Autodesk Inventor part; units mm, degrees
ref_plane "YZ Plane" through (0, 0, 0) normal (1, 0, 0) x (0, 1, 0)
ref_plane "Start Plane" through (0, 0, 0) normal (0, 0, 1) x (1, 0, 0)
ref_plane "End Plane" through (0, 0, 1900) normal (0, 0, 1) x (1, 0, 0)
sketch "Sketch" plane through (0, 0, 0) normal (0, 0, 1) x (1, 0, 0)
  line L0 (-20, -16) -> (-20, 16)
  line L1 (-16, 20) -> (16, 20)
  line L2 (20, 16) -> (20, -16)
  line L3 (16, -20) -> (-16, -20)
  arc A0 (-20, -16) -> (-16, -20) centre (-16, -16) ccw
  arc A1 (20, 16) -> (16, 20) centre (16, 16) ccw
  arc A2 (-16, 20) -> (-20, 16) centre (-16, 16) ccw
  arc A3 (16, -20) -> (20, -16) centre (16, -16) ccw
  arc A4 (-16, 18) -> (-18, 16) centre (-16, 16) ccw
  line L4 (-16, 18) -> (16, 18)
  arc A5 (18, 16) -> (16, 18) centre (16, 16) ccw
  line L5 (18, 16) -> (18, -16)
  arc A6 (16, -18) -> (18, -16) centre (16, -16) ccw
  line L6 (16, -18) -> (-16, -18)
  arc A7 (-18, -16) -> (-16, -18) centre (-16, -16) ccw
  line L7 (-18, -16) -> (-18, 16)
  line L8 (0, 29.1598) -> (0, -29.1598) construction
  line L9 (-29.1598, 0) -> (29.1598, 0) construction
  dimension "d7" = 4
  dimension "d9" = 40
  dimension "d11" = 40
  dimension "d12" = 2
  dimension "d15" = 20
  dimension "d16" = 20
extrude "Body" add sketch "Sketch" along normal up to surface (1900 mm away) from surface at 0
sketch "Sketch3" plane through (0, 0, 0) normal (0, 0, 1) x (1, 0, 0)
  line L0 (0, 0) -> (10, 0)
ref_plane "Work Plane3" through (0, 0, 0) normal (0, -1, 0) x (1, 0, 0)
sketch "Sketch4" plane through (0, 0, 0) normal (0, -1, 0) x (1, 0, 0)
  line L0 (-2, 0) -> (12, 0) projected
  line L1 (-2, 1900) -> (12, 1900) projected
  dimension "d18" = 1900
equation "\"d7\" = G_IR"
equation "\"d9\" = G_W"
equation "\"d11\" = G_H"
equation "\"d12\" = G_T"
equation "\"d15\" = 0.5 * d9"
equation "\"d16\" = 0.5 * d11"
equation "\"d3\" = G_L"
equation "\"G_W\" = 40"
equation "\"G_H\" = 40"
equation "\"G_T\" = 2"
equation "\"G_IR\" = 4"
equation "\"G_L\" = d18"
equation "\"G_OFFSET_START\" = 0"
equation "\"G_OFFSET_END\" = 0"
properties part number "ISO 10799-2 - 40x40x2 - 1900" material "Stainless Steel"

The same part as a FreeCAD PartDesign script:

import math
import FreeCAD as App
import Part
import Sketcher

V = App.Vector

doc = App.newDocument("Part")
params = doc.addObject("Spreadsheet::Sheet", "Params")
for row, (alias, value) in enumerate([
    ("sketch1_radius", "4 mm"),
    ("sketch1_radius2", "2 mm"),
    ("pad1_length", "1900 mm"),
], start=1):
    params.set(f"A{row}", alias)
    params.set(f"B{row}", "=" + value)
    params.setAlias(f"B{row}", alias)

body = doc.addObject("PartDesign::Body", "Body")

# Sketch on XY plane
sketch1 = body.newObject("Sketcher::SketchObject", "Sketch")
sketch1.AttachmentSupport = (doc.getObject("XY_Plane"), [""])
sketch1.MapMode = "FlatFace"
sketch1.addGeometry([
    Part.LineSegment(V(-20, 16, 0), V(-20, -16, 0)),  # 0
    Part.ArcOfCircle(Part.Circle(V(-16, -16, 0), V(0, 0, 1), 4), math.radians(180), math.radians(270)),  # 1
    Part.LineSegment(V(-16, -20, 0), V(16, -20, 0)),  # 2
    Part.ArcOfCircle(Part.Circle(V(16, -16, 0), V(0, 0, 1), 4), math.radians(-90), math.radians(0)),  # 3
    Part.LineSegment(V(20, -16, 0), V(20, 16, 0)),  # 4
    Part.ArcOfCircle(Part.Circle(V(16, 16, 0), V(0, 0, 1), 4), math.radians(0), math.radians(90)),  # 5
    Part.LineSegment(V(16, 20, 0), V(-16, 20, 0)),  # 6
    Part.ArcOfCircle(Part.Circle(V(-16, 16, 0), V(0, 0, 1), 4), math.radians(90), math.radians(180)),  # 7
    Part.ArcOfCircle(Part.Circle(V(-16, 16, 0), V(0, 0, 1), 2), math.radians(90), math.radians(180)),  # 8
    Part.LineSegment(V(-16, 18, 0), V(16, 18, 0)),  # 9
    Part.ArcOfCircle(Part.Circle(V(16, 16, 0), V(0, 0, 1), 2), math.radians(0), math.radians(90)),  # 10
    Part.LineSegment(V(18, 16, 0), V(18, -16, 0)),  # 11
    Part.ArcOfCircle(Part.Circle(V(16, -16, 0), V(0, 0, 1), 2), math.radians(-90), math.radians(0)),  # 12
    Part.LineSegment(V(16, -18, 0), V(-16, -18, 0)),  # 13
    Part.ArcOfCircle(Part.Circle(V(-16, -16, 0), V(0, 0, 1), 2), math.radians(180), math.radians(270)),  # 14
    Part.LineSegment(V(-18, -16, 0), V(-18, 16, 0)),  # 15
], False)
sketch1.addConstraint([
    Sketcher.Constraint("Tangent", 0, 2, 1, 1),
    Sketcher.Constraint("Tangent", 1, 2, 2, 1),
    Sketcher.Constraint("Tangent", 2, 2, 3, 1),
    Sketcher.Constraint("Tangent", 3, 2, 4, 1),
    Sketcher.Constraint("Tangent", 4, 2, 5, 1),
    Sketcher.Constraint("Tangent", 5, 2, 6, 1),
    Sketcher.Constraint("Tangent", 6, 2, 7, 1),
    Sketcher.Constraint("Tangent", 7, 2, 0, 1),
    Sketcher.Constraint("Tangent", 8, 1, 9, 1),
    Sketcher.Constraint("Tangent", 9, 2, 10, 2),
    Sketcher.Constraint("Tangent", 10, 1, 11, 1),
    Sketcher.Constraint("Tangent", 11, 2, 12, 2),
    Sketcher.Constraint("Tangent", 12, 1, 13, 1),
    Sketcher.Constraint("Tangent", 13, 2, 14, 2),
    Sketcher.Constraint("Tangent", 14, 1, 15, 1),
    Sketcher.Constraint("Tangent", 15, 2, 8, 2),
    Sketcher.Constraint("Vertical", 0),
    Sketcher.Constraint("Horizontal", 2),
    Sketcher.Constraint("Vertical", 4),
    Sketcher.Constraint("Horizontal", 6),
    Sketcher.Constraint("Horizontal", 9),
    Sketcher.Constraint("Vertical", 11),
    Sketcher.Constraint("Horizontal", 13),
    Sketcher.Constraint("Vertical", 15),
    Sketcher.Constraint("Coincident", 8, 3, 7, 3),
    Sketcher.Constraint("Coincident", 10, 3, 5, 3),
    Sketcher.Constraint("Coincident", 12, 3, 3, 3),
    Sketcher.Constraint("Equal", 1, 3),
    Sketcher.Constraint("Equal", 3, 5),
    Sketcher.Constraint("Equal", 5, 7),
    Sketcher.Constraint("Equal", 12, 14),
    Sketcher.Constraint("Symmetric", 1, 3, 5, 3, -1, 1),
    Sketcher.Constraint("Equal", 13, 0),
    Sketcher.Constraint("Radius", 1, 4.0),
    Sketcher.Constraint("Radius", 8, 2.0),
    Sketcher.Constraint("DistanceX", 0, 2, -1, 1, 20.0),
])
sketch1.setExpression("Constraints[33]", "Params.sketch1_radius")
sketch1.setExpression("Constraints[34]", "Params.sketch1_radius2")
pad1 = body.newObject("PartDesign::Pad", "Pad")
pad1.Profile = sketch1
pad1.setExpression("Length", "Params.pad1_length")

doc.recompute()
